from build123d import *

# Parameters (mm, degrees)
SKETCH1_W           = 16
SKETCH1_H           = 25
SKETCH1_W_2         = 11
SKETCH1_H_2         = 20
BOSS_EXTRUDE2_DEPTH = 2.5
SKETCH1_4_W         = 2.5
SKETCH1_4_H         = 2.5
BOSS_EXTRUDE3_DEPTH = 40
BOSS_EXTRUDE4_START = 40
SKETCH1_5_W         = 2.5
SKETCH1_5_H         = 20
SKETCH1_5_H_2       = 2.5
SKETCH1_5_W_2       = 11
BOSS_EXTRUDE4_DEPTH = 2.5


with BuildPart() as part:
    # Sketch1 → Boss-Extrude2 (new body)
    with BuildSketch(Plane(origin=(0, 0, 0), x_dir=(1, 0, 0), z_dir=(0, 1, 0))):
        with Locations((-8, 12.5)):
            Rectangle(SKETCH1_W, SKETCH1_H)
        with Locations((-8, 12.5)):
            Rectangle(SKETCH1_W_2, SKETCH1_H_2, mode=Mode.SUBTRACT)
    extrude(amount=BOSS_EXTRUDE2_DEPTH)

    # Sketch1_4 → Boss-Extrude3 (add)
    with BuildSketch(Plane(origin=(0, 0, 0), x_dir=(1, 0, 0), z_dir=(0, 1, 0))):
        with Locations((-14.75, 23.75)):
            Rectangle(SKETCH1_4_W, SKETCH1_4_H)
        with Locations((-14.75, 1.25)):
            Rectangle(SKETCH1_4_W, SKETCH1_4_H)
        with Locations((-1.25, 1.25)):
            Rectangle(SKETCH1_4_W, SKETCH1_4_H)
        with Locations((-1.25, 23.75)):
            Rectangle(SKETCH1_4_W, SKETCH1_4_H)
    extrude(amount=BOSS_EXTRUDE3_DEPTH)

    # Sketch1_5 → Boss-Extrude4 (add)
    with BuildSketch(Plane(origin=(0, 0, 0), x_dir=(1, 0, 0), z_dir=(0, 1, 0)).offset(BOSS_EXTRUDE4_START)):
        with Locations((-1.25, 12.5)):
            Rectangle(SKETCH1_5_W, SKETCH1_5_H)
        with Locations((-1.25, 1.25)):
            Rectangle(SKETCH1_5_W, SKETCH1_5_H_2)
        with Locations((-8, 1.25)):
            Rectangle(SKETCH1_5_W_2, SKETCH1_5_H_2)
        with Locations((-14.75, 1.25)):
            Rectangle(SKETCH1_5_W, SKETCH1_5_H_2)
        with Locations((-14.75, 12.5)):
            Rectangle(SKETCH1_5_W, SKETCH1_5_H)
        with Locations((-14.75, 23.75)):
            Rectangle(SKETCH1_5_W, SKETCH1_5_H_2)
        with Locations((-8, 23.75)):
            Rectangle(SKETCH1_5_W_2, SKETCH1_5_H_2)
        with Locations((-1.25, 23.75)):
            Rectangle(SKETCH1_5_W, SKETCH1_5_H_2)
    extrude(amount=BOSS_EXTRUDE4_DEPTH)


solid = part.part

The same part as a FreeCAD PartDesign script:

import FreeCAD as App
import Part
import Sketcher
Q = App.Units.Quantity


def add_polygon(sketch, points):
    """Adds a closed chain of lines whose ends are joined by coincident constraints."""
    first, n = sketch.GeometryCount, len(points)
    for a, b in zip(points, points[1:] + points[:1]):
        sketch.addGeometry(Part.LineSegment(App.Vector(*a, 0), App.Vector(*b, 0)), False)
    for i in range(n):
        sketch.addConstraint(Sketcher.Constraint("Coincident", first + i, 2, first + (i + 1) % n, 1))

doc = App.newDocument("Part")
body = doc.addObject("PartDesign::Body", "Body")

# Sketch on XZ plane
sketch1 = body.newObject("Sketcher::SketchObject", "Sketch")
sketch1.AttachmentSupport = (doc.getObject("XZ_Plane"), [""])
sketch1.MapMode = "FlatFace"
add_polygon(sketch1, [(-16, -25), (-16, 0), (0, 0), (0, -25)])  # lines 0-3
add_polygon(sketch1, [(-2, -2), (-14, -2), (-14, -22), (-2, -22)])  # lines 4-7
sketch1.addConstraint([
    Sketcher.Constraint("Vertical", 0),
    Sketcher.Constraint("Horizontal", 1),
    Sketcher.Constraint("Vertical", 2),
    Sketcher.Constraint("Horizontal", 3),
    Sketcher.Constraint("Horizontal", 4),
    Sketcher.Constraint("Vertical", 5),
    Sketcher.Constraint("Horizontal", 6),
    Sketcher.Constraint("Vertical", 7),
    Sketcher.Constraint("Coincident", 1, 2, -1, 1),
    Sketcher.Constraint("DistanceX", 1, 1, 1, 2, Q("16 mm")),
    Sketcher.Constraint("DistanceX", 4, 2, 4, 1, Q("11 mm")),
    Sketcher.Constraint("DistanceY", 0, 1, 0, 2, Q("25 mm")),
    Sketcher.Constraint("DistanceY", 5, 2, 5, 1, Q("20 mm")),
    Sketcher.Constraint("DistanceX", 4, 2, -1, 1, Q("13.5 mm")),
    Sketcher.Constraint("DistanceY", 4, 2, -1, 1, Q("2.5 mm")),
])
pad1 = body.newObject("PartDesign::Pad", "Pad")
pad1.Profile = sketch1
pad1.Length = 2.5
pad1.Reversed = True

# Sketch on XZ plane
sketch2 = body.newObject("Sketcher::SketchObject", "Sketch001")
sketch2.AttachmentSupport = (doc.getObject("XZ_Plane"), [""])
sketch2.MapMode = "FlatFace"
add_polygon(sketch2, [(-16, -25), (-16, -22.5), (-13.5, -22.5), (-13.5, -25)])  # lines 0-3
add_polygon(sketch2, [(-16, -2.5), (-16, 0), (-13.5, 0), (-13.5, -2.5)])  # lines 4-7
add_polygon(sketch2, [(-2.5, -2.5), (-2.5, 0), (0, 0), (0, -2.5)])  # lines 8-11
add_polygon(sketch2, [(-2.5, -25), (-2.5, -22.5), (0, -22.5), (0, -25)])  # lines 12-15
sketch2.addConstraint([
    Sketcher.Constraint("Vertical", 0),
    Sketcher.Constraint("Horizontal", 1),
    Sketcher.Constraint("Vertical", 2),
    Sketcher.Constraint("Horizontal", 3),
    Sketcher.Constraint("Vertical", 4),
    Sketcher.Constraint("Horizontal", 5),
    Sketcher.Constraint("Vertical", 6),
    Sketcher.Constraint("Horizontal", 7),
    Sketcher.Constraint("Vertical", 8),
    Sketcher.Constraint("Horizontal", 9),
    Sketcher.Constraint("Vertical", 10),
    Sketcher.Constraint("Horizontal", 11),
    Sketcher.Constraint("Vertical", 12),
    Sketcher.Constraint("Horizontal", 13),
    Sketcher.Constraint("Vertical", 14),
    Sketcher.Constraint("Horizontal", 15),
    Sketcher.Constraint("Coincident", 9, 2, -1, 1),
    Sketcher.Constraint("PointOnObject", 4, 2, -1),
    Sketcher.Constraint("PointOnObject", 13, 2, -2),
    Sketcher.Constraint("Horizontal", 7, 2, 10, 2),
    Sketcher.Constraint("Horizontal", 1, 2, 12, 2),
    Sketcher.Constraint("Horizontal", 3, 2, 14, 2),
    Sketcher.Constraint("Vertical", 3, 2, 4, 2),
    Sketcher.Constraint("Vertical", 2, 2, 5, 2),
    Sketcher.Constraint("Vertical", 11, 2, 12, 2),
    Sketcher.Constraint("Equal", 7, 9),
    Sketcher.Constraint("Equal", 15, 0),
    Sketcher.Constraint("Equal", 2, 4),
    Sketcher.Constraint("DistanceX", 1, 1, 1, 2, Q("2.5 mm")),
    Sketcher.Constraint("DistanceX", 0, 2, -1, 1, Q("16 mm")),
    Sketcher.Constraint("DistanceY", 2, 2, -1, 1, Q("25 mm")),
])
pad2 = body.newObject("PartDesign::Pad", "Pad001")
pad2.Profile = sketch2
pad2.Length = 40
pad2.Reversed = True

# Sketch on XZ plane
sketch3 = body.newObject("Sketcher::SketchObject", "Sketch002")
sketch3.AttachmentSupport = (doc.getObject("XZ_Plane"), [""])
sketch3.MapMode = "FlatFace"
sketch3.AttachmentOffset = App.Placement(App.Vector(0, 0, -40), App.Rotation())
add_polygon(sketch3, [(0, 0), (0, -25), (-16, -25), (-16, 0)])  # lines 0-3
add_polygon(sketch3, [(-14, -22), (-2, -22), (-2, -2), (-14, -2)])  # lines 4-7
sketch3.addConstraint([
    Sketcher.Constraint("Vertical", 0),
    Sketcher.Constraint("Horizontal", 1),
    Sketcher.Constraint("Vertical", 2),
    Sketcher.Constraint("Horizontal", 3),
    Sketcher.Constraint("Horizontal", 4),
    Sketcher.Constraint("Vertical", 5),
    Sketcher.Constraint("Horizontal", 6),
    Sketcher.Constraint("Vertical", 7),
    Sketcher.Constraint("Coincident", 3, 2, -1, 1),
    Sketcher.Constraint("DistanceX", 1, 2, 1, 1, Q("16 mm")),
    Sketcher.Constraint("DistanceX", 4, 1, 4, 2, Q("11 mm")),
    Sketcher.Constraint("DistanceY", 0, 2, 0, 1, Q("25 mm")),
    Sketcher.Constraint("DistanceY", 5, 1, 5, 2, Q("20 mm")),
    Sketcher.Constraint("DistanceX", 4, 2, -1, 1, Q("2.5 mm")),
    Sketcher.Constraint("DistanceY", 4, 2, -1, 1, Q("22.5 mm")),
])
pad3 = body.newObject("PartDesign::Pad", "Pad002")
pad3.Profile = sketch3
pad3.Length = 2.5
pad3.Reversed = True

doc.recompute()
